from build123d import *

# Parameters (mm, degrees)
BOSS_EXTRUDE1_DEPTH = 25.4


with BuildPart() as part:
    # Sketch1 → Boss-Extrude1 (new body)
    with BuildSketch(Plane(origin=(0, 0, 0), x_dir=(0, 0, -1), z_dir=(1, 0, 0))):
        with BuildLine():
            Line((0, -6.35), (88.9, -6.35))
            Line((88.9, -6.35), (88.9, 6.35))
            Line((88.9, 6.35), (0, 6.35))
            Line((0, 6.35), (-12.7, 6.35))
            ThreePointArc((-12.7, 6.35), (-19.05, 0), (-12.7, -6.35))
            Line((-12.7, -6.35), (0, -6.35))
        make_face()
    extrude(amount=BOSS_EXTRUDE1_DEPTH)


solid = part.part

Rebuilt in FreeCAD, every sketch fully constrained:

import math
import FreeCAD as App
import Part
import Sketcher

V = App.Vector
Q = App.Units.Quantity

doc = App.newDocument("Part")
body = doc.addObject("PartDesign::Body", "Body")

sketch1 = body.newObject("Sketcher::SketchObject", "Sketch")
sketch1.AttachmentSupport = (doc.getObject("YZ_Plane"), [""])
sketch1.MapMode = "FlatFace"
sketch1.addGeometry([
    Part.LineSegment(V(-6, -89, 0), V(6, -89, 0)),
    Part.LineSegment(V(6, -89, 0), V(6, 13, 0)),
    Part.ArcOfCircle(Part.Circle(V(0, 13, 0), V(0, 0, 1), 6), math.radians(0), math.radians(180)),
    Part.LineSegment(V(-6, 13, 0), V(-6, -89, 0)),
], False)
sketch1.addConstraint([
    Sketcher.Constraint("Coincident", 0, 2, 1, 1),
    Sketcher.Constraint("Tangent", 1, 2, 2, 1),
    Sketcher.Constraint("Tangent", 2, 2, 3, 1),
    Sketcher.Constraint("Coincident", 3, 2, 0, 1),
    Sketcher.Constraint("Horizontal", 0),
    Sketcher.Constraint("Vertical", 1),
    Sketcher.Constraint("Vertical", 3),
    Sketcher.Constraint("PointOnObject", 2, 3, -2),
    Sketcher.Constraint("DistanceY", 1, 1, 1, 2, Q("4 in")),
    Sketcher.Constraint("Radius", 2, Q("0.25 in")),
    Sketcher.Constraint("DistanceY", -1, 1, 2, 3, Q("0.5 in")),
])
pad1 = body.newObject("PartDesign::Pad", "Pad")
pad1.Profile = sketch1
pad1.Length = Q("1 in")

doc.recompute()
